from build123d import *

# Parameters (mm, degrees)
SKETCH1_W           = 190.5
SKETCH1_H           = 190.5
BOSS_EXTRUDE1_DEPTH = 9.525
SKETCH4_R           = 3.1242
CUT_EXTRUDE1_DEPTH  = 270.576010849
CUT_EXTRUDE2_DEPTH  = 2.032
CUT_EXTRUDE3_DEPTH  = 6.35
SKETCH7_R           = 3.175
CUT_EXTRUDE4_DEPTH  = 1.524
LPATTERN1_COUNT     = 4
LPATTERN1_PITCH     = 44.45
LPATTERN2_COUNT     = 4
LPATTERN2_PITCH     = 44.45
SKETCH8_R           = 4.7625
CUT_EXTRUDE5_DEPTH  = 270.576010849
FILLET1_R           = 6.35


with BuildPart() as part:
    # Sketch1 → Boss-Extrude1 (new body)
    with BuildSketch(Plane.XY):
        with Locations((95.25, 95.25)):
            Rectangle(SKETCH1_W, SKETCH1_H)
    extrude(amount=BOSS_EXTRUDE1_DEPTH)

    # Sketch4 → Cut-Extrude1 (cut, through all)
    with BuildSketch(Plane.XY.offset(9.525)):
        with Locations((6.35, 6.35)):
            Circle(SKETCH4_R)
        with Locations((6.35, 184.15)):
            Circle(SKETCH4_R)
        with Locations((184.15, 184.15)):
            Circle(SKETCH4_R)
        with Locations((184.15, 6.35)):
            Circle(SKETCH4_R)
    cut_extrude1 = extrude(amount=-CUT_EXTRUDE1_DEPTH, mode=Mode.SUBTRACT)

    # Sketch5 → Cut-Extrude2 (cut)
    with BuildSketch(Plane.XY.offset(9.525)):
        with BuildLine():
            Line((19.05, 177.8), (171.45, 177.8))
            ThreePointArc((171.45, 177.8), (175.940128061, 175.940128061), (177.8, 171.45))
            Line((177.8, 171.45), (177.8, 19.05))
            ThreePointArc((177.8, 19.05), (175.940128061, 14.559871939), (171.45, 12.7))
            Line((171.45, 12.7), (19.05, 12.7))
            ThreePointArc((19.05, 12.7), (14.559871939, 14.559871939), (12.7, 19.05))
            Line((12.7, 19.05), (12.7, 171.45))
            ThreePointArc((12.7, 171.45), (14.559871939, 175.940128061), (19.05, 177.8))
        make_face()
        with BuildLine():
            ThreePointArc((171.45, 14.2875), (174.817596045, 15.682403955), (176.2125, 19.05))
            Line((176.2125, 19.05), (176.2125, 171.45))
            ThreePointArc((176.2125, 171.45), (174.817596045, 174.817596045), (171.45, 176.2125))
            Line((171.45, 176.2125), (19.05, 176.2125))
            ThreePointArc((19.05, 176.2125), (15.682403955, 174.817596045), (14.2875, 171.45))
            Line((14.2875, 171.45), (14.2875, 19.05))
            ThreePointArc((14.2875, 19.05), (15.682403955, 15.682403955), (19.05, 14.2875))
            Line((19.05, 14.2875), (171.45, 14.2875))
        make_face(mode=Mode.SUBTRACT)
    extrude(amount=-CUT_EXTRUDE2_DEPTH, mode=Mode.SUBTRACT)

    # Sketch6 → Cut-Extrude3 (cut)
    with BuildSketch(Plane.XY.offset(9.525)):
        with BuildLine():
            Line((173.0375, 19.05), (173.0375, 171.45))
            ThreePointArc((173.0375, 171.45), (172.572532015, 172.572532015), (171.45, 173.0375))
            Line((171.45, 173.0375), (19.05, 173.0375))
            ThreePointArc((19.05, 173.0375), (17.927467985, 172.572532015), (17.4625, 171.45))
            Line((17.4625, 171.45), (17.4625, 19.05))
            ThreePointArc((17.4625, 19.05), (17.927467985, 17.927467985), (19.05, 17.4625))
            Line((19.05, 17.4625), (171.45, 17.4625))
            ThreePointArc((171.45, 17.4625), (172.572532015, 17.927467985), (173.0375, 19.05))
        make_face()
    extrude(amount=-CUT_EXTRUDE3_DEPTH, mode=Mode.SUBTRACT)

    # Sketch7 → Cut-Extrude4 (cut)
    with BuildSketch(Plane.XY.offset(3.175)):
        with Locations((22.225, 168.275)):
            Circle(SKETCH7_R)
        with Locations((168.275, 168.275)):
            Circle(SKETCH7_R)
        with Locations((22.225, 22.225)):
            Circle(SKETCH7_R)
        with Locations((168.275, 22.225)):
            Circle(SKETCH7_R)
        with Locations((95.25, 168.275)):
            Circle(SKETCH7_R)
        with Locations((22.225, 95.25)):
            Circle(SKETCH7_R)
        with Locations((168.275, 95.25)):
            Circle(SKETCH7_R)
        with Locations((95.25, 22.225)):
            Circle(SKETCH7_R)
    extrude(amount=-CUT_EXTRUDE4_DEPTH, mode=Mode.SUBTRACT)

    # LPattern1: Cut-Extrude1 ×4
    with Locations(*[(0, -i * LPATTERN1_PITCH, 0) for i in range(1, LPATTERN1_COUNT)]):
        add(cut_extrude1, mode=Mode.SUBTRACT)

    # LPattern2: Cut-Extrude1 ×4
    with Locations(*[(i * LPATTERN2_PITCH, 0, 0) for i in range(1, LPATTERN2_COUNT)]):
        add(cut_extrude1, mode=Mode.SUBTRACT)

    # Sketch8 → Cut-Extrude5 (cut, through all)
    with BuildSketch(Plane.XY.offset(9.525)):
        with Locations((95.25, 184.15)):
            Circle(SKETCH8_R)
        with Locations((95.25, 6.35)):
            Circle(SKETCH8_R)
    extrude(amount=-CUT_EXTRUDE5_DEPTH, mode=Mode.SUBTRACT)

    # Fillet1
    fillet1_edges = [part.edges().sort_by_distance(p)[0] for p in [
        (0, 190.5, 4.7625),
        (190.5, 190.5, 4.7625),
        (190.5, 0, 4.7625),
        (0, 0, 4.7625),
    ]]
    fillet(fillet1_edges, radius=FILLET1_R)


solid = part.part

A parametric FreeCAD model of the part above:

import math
import FreeCAD as App
import Part
import Sketcher

V = App.Vector
Q = App.Units.Quantity


def edges_at(feature, points):
    """Names of the edges that pass closest to the given points."""
    edges = feature.Shape.Edges
    near = lambda p: min(range(len(edges)), key=lambda i: edges[i].distToShape(Part.Vertex(*p))[0])
    return sorted({f"Edge{near(p) + 1}" for p in points})

doc = App.newDocument("Part")
body = doc.addObject("PartDesign::Body", "Body")

# Sketch on XY plane
sketch1 = body.newObject("Sketcher::SketchObject", "Sketch")
sketch1.AttachmentSupport = (doc.getObject("XY_Plane"), [""])
sketch1.MapMode = "FlatFace"
sketch1.addGeometry([
    Part.LineSegment(V(0, 190, 0), V(0, 0, 0)),
    Part.LineSegment(V(0, 0, 0), V(190, 0, 0)),
    Part.LineSegment(V(190, 0, 0), V(190, 190, 0)),
    Part.LineSegment(V(190, 190, 0), V(0, 190, 0)),
], False)
sketch1.addConstraint([
    Sketcher.Constraint("Coincident", 0, 2, 1, 1),
    Sketcher.Constraint("Coincident", 1, 2, 2, 1),
    Sketcher.Constraint("Coincident", 2, 2, 3, 1),
    Sketcher.Constraint("Coincident", 3, 2, 0, 1),
    Sketcher.Constraint("Vertical", 0),
    Sketcher.Constraint("Horizontal", 1),
    Sketcher.Constraint("Vertical", 2),
    Sketcher.Constraint("Horizontal", 3),
    Sketcher.Constraint("Coincident", 0, 2, -1, 1),
    Sketcher.Constraint("Equal", 3, 0),
    Sketcher.Constraint("DistanceX", 1, 1, 1, 2, Q("7.5 in")),
])
pad1 = body.newObject("PartDesign::Pad", "Pad")
pad1.Profile = sketch1
pad1.Length = Q("0.375 in")

# Sketch on XY plane
sketch2 = body.newObject("Sketcher::SketchObject", "Sketch001")
sketch2.AttachmentSupport = (doc.getObject("XY_Plane"), [""])
sketch2.MapMode = "FlatFace"
sketch2.AttachmentOffset = App.Placement(V(0, 0, 0.375 * 25.4), App.Rotation())
sketch2.addGeometry([
    Part.Circle(V(6.3, 6.3, 0), V(0, 0, 1), 3.1),
    Part.Circle(V(6.3, 184.2, 0), V(0, 0, 1), 3.1),
    Part.Circle(V(184.2, 184.2, 0), V(0, 0, 1), 3.1),
    Part.Circle(V(184.2, 6.3, 0), V(0, 0, 1), 3.1),
], False)
sketch2.addConstraint([
    Sketcher.Constraint("Equal", 0, 1),
    Sketcher.Constraint("Equal", 1, 2),
    Sketcher.Constraint("Equal", 2, 3),
    Sketcher.Constraint("Horizontal", 1, 3, 2, 3),
    Sketcher.Constraint("Horizontal", 0, 3, 3, 3),
    Sketcher.Constraint("Vertical", 0, 3, 1, 3),
    Sketcher.Constraint("Vertical", 2, 3, 3, 3),
    Sketcher.Constraint("Diameter", 0, Q("0.246 in")),
    Sketcher.Constraint("DistanceY", 0, 3, 1, 3, Q("7 in")),
    Sketcher.Constraint("DistanceX", 1, 3, 2, 3, Q("7 in")),
    Sketcher.Constraint("DistanceX", -1, 1, 0, 3, Q("0.25 in")),
    Sketcher.Constraint("DistanceY", -1, 1, 0, 3, Q("0.25 in")),
])
pocket1 = body.newObject("PartDesign::Pocket", "Pocket")
pocket1.Profile = sketch2
pocket1.Type = "ThroughAll"

# Sketch on XY plane
sketch3 = body.newObject("Sketcher::SketchObject", "Sketch002")
sketch3.AttachmentSupport = (doc.getObject("XY_Plane"), [""])
sketch3.MapMode = "FlatFace"
sketch3.AttachmentOffset = App.Placement(V(0, 0, 0.375 * 25.4), App.Rotation())
sketch3.addGeometry([
    Part.LineSegment(V(171.4, 177.8, 0), V(19.1, 177.8, 0)),  # 0
    Part.ArcOfCircle(Part.Circle(V(19, 171.5, 0), V(0, 0, 1), 6.3), math.radians(90), math.radians(180)),  # 1
    Part.LineSegment(V(12.7, 171.4, 0), V(12.7, 19.1, 0)),  # 2
    Part.ArcOfCircle(Part.Circle(V(19, 19, 0), V(0, 0, 1), 6.3), math.radians(180), math.radians(270)),  # 3
    Part.LineSegment(V(19.1, 12.7, 0), V(171.4, 12.7, 0)),  # 4
    Part.ArcOfCircle(Part.Circle(V(171.5, 19, 0), V(0, 0, 1), 6.3), math.radians(-90), math.radians(0)),  # 5
    Part.LineSegment(V(177.8, 19.1, 0), V(177.8, 171.4, 0)),  # 6
    Part.ArcOfCircle(Part.Circle(V(171.5, 171.5, 0), V(0, 0, 1), 6.3), math.radians(0), math.radians(90)),  # 7
    Part.LineSegment(V(171.4, 14.3, 0), V(19.1, 14.3, 0)),  # 8
    Part.ArcOfCircle(Part.Circle(V(19.1, 19.1, 0), V(0, 0, 1), 4.8), math.radians(-180), math.radians(-90)),  # 9
    Part.LineSegment(V(14.3, 19.1, 0), V(14.3, 171.4, 0)),  # 10
    Part.ArcOfCircle(Part.Circle(V(19.1, 171.4, 0), V(0, 0, 1), 4.8), math.radians(90), math.radians(180)),  # 11
    Part.LineSegment(V(19.1, 176.2, 0), V(171.4, 176.2, 0)),  # 12
    Part.ArcOfCircle(Part.Circle(V(171.4, 171.4, 0), V(0, 0, 1), 4.8), math.radians(0), math.radians(90)),  # 13
    Part.LineSegment(V(176.2, 171.4, 0), V(176.2, 19.1, 0)),  # 14
    Part.ArcOfCircle(Part.Circle(V(171.4, 19.1, 0), V(0, 0, 1), 4.8), math.radians(-90), math.radians(0)),  # 15
], False)
sketch3.addConstraint([
    Sketcher.Constraint("Tangent", 0, 2, 1, 1),
    Sketcher.Constraint("Tangent", 1, 2, 2, 1),
    Sketcher.Constraint("Tangent", 2, 2, 3, 1),
    Sketcher.Constraint("Tangent", 3, 2, 4, 1),
    Sketcher.Constraint("Tangent", 4, 2, 5, 1),
    Sketcher.Constraint("Tangent", 5, 2, 6, 1),
    Sketcher.Constraint("Tangent", 6, 2, 7, 1),
    Sketcher.Constraint("Tangent", 7, 2, 0, 1),
    Sketcher.Constraint("Tangent", 8, 2, 9, 2),
    Sketcher.Constraint("Tangent", 9, 1, 10, 1),
    Sketcher.Constraint("Tangent", 10, 2, 11, 2),
    Sketcher.Constraint("Tangent", 11, 1, 12, 1),
    Sketcher.Constraint("Tangent", 12, 2, 13, 2),
    Sketcher.Constraint("Tangent", 13, 1, 14, 1),
    Sketcher.Constraint("Tangent", 14, 2, 15, 2),
    Sketcher.Constraint("Tangent", 15, 1, 8, 1),
    Sketcher.Constraint("Horizontal", 0),
    Sketcher.Constraint("Vertical", 2),
    Sketcher.Constraint("Horizontal", 4),
    Sketcher.Constraint("Vertical", 6),
    Sketcher.Constraint("Horizontal", 8),
    Sketcher.Constraint("Vertical", 10),
    Sketcher.Constraint("Horizontal", 12),
    Sketcher.Constraint("Vertical", 14),
    Sketcher.Constraint("Coincident", 9, 3, 3, 3),
    Sketcher.Constraint("Coincident", 11, 3, 1, 3),
    Sketcher.Constraint("Coincident", 13, 3, 7, 3),
    Sketcher.Constraint("Equal", 1, 3),
    Sketcher.Constraint("Equal", 3, 5),
    Sketcher.Constraint("Equal", 5, 7),
    Sketcher.Constraint("Equal", 13, 15),
    Sketcher.Constraint("Equal", 12, 2),
    Sketcher.Constraint("DistanceX", 0, 2, 0, 1, Q("6 in")),
    Sketcher.Constraint("Radius", 1, Q("0.25 in")),
    Sketcher.Constraint("DistanceY", -1, 1, 0, 2, Q("7 in")),
    Sketcher.Constraint("DistanceX", -1, 1, 5, 2, Q("7 in")),
    Sketcher.Constraint("Radius", 9, Q("0.1875 in")),
])
pocket2 = body.newObject("PartDesign::Pocket", "Pocket001")
pocket2.Profile = sketch3
pocket2.Length = Q("0.08 in")

# Sketch on XY plane
sketch4 = body.newObject("Sketcher::SketchObject", "Sketch003")
sketch4.AttachmentSupport = (doc.getObject("XY_Plane"), [""])
sketch4.MapMode = "FlatFace"
sketch4.AttachmentOffset = App.Placement(V(0, 0, 0.375 * 25.4), App.Rotation())
sketch4.addGeometry([
    Part.LineSegment(V(173, 19.1, 0), V(173, 171.4, 0)),  # 0
    Part.ArcOfCircle(Part.Circle(V(171.4, 171.4, 0), V(0, 0, 1), 1.6), math.radians(0), math.radians(90)),  # 1
    Part.LineSegment(V(171.4, 173, 0), V(19.1, 173, 0)),  # 2
    Part.ArcOfCircle(Part.Circle(V(19.1, 171.4, 0), V(0, 0, 1), 1.6), math.radians(90), math.radians(180)),  # 3
    Part.LineSegment(V(17.5, 171.4, 0), V(17.5, 19.1, 0)),  # 4
    Part.ArcOfCircle(Part.Circle(V(19.1, 19.1, 0), V(0, 0, 1), 1.6), math.radians(180), math.radians(270)),  # 5
    Part.LineSegment(V(19.1, 17.5, 0), V(171.4, 17.5, 0)),  # 6
    Part.ArcOfCircle(Part.Circle(V(171.4, 19.1, 0), V(0, 0, 1), 1.6), math.radians(-90), math.radians(0)),  # 7
], False)
sketch4.addConstraint([
    Sketcher.Constraint("Tangent", 0, 2, 1, 1),
    Sketcher.Constraint("Tangent", 1, 2, 2, 1),
    Sketcher.Constraint("Tangent", 2, 2, 3, 1),
    Sketcher.Constraint("Tangent", 3, 2, 4, 1),
    Sketcher.Constraint("Tangent", 4, 2, 5, 1),
    Sketcher.Constraint("Tangent", 5, 2, 6, 1),
    Sketcher.Constraint("Tangent", 6, 2, 7, 1),
    Sketcher.Constraint("Tangent", 7, 2, 0, 1),
    Sketcher.Constraint("Vertical", 0),
    Sketcher.Constraint("Horizontal", 2),
    Sketcher.Constraint("Vertical", 4),
    Sketcher.Constraint("Horizontal", 6),
    Sketcher.Constraint("Equal", 1, 3),
    Sketcher.Constraint("Equal", 3, 5),
    Sketcher.Constraint("Equal", 5, 7),
    Sketcher.Constraint("Equal", 6, 0),
    Sketcher.Constraint("DistanceX", 2, 2, 2, 1, Q("6 in")),
    Sketcher.Constraint("Radius", 1, Q("0.0625 in")),
    Sketcher.Constraint("DistanceX", -1, 1, 1, 3, Q("6.75 in")),
    Sketcher.Constraint("DistanceY", -1, 1, 1, 3, Q("6.75 in")),
])
pocket3 = body.newObject("PartDesign::Pocket", "Pocket002")
pocket3.Profile = sketch4
pocket3.Length = Q("0.25 in")

# Sketch on XY plane
sketch5 = body.newObject("Sketcher::SketchObject", "Sketch004")
sketch5.AttachmentSupport = (doc.getObject("XY_Plane"), [""])
sketch5.MapMode = "FlatFace"
sketch5.AttachmentOffset = App.Placement(V(0, 0, 0.125 * 25.4), App.Rotation())
sketch5.addGeometry([
    Part.Circle(V(22.2, 168.3, 0), V(0, 0, 1), 3.2),  # 0
    Part.Circle(V(168.3, 168.3, 0), V(0, 0, 1), 3.2),  # 1
    Part.Circle(V(22.2, 22.2, 0), V(0, 0, 1), 3.2),  # 2
    Part.Circle(V(168.3, 22.2, 0), V(0, 0, 1), 3.2),  # 3
    Part.Circle(V(95.2, 168.3, 0), V(0, 0, 1), 3.2),  # 4
    Part.Circle(V(22.2, 95.2, 0), V(0, 0, 1), 3.2),  # 5
    Part.Circle(V(168.3, 95.2, 0), V(0, 0, 1), 3.2),  # 6
    Part.Circle(V(95.2, 22.2, 0), V(0, 0, 1), 3.2),  # 7
], False)
sketch5.addConstraint([
    Sketcher.Constraint("Equal", 0, 1),
    Sketcher.Constraint("Equal", 1, 2),
    Sketcher.Constraint("Equal", 2, 3),
    Sketcher.Constraint("Equal", 3, 4),
    Sketcher.Constraint("Equal", 4, 5),
    Sketcher.Constraint("Equal", 5, 6),
    Sketcher.Constraint("Equal", 6, 7),
    Sketcher.Constraint("Horizontal", 0, 3, 1, 3),
    Sketcher.Constraint("Horizontal", 2, 3, 3, 3),
    Sketcher.Constraint("Horizontal", 1, 3, 4, 3),
    Sketcher.Constraint("Horizontal", 5, 3, 6, 3),
    Sketcher.Constraint("Horizontal", 3, 3, 7, 3),
    Sketcher.Constraint("Vertical", 0, 3, 2, 3),
    Sketcher.Constraint("Vertical", 1, 3, 3, 3),
    Sketcher.Constraint("Vertical", 2, 3, 5, 3),
    Sketcher.Constraint("Vertical", 3, 3, 6, 3),
    Sketcher.Constraint("Vertical", 4, 3, 7, 3),
    Sketcher.Constraint("Diameter", 0, Q("0.25 in")),
    Sketcher.Constraint("DistanceX", -1, 1, 4, 3, Q("3.75 in")),
    Sketcher.Constraint("DistanceY", -1, 1, 5, 3, Q("3.75 in")),
    Sketcher.Constraint("DistanceX", 0, 3, 1, 3, Q("5.75 in")),
    Sketcher.Constraint("DistanceY", 2, 3, 0, 3, Q("5.75 in")),
    Sketcher.Constraint("DistanceX", -1, 1, 0, 3, Q("0.875 in")),
    Sketcher.Constraint("DistanceY", -1, 1, 0, 3, Q("6.625 in")),
])
pocket4 = body.newObject("PartDesign::Pocket", "Pocket003")
pocket4.Profile = sketch5
pocket4.Length = Q("0.06 in")
doc.recompute()

linearpattern = body.newObject("PartDesign::LinearPattern", "LinearPattern")
linearpattern.Originals = [pocket1]
linearpattern.Direction = (doc.getObject("Y_Axis"), [""])
linearpattern.Mode = "offset"
linearpattern.Offset = Q("1.75 in")
linearpattern.Occurrences = 4
linearpattern.Reversed = True
body.Tip = linearpattern
doc.recompute()

linearpattern2 = body.newObject("PartDesign::LinearPattern", "LinearPattern001")
linearpattern2.Originals = [pocket1]
linearpattern2.Direction = (doc.getObject("X_Axis"), [""])
linearpattern2.Mode = "offset"
linearpattern2.Offset = Q("1.75 in")
linearpattern2.Occurrences = 4
body.Tip = linearpattern2

# Sketch on XY plane
sketch6 = body.newObject("Sketcher::SketchObject", "Sketch005")
sketch6.AttachmentSupport = (doc.getObject("XY_Plane"), [""])
sketch6.MapMode = "FlatFace"
sketch6.AttachmentOffset = App.Placement(V(0, 0, 0.375 * 25.4), App.Rotation())
sketch6.addGeometry([
    Part.Circle(V(95.2, 184.2, 0), V(0, 0, 1), 4.8),
    Part.Circle(V(95.2, 6.3, 0), V(0, 0, 1), 4.8),
], False)
sketch6.addConstraint([
    Sketcher.Constraint("Equal", 0, 1),
    Sketcher.Constraint("Vertical", 0, 3, 1, 3),
    Sketcher.Constraint("Diameter", 0, Q("0.375 in")),
    Sketcher.Constraint("DistanceY", 1, 3, 0, 3, Q("7 in")),
    Sketcher.Constraint("DistanceX", -1, 1, 0, 3, Q("3.75 in")),
    Sketcher.Constraint("DistanceY", -1, 1, 0, 3, Q("7.25 in")),
])
pocket5 = body.newObject("PartDesign::Pocket", "Pocket004")
pocket5.Profile = sketch6
pocket5.Type = "ThroughAll"
doc.recompute()

fillet = body.newObject("PartDesign::Fillet", "Fillet")
fillet.Base = (pocket5, edges_at(pocket5, [
    (0, 190.5, 4.763),
    (190.5, 190.5, 4.763),
    (190.5, 0, 4.763),
    (0, 0, 4.763),
]))
fillet.Radius = Q("0.25 in")

doc.recompute()
